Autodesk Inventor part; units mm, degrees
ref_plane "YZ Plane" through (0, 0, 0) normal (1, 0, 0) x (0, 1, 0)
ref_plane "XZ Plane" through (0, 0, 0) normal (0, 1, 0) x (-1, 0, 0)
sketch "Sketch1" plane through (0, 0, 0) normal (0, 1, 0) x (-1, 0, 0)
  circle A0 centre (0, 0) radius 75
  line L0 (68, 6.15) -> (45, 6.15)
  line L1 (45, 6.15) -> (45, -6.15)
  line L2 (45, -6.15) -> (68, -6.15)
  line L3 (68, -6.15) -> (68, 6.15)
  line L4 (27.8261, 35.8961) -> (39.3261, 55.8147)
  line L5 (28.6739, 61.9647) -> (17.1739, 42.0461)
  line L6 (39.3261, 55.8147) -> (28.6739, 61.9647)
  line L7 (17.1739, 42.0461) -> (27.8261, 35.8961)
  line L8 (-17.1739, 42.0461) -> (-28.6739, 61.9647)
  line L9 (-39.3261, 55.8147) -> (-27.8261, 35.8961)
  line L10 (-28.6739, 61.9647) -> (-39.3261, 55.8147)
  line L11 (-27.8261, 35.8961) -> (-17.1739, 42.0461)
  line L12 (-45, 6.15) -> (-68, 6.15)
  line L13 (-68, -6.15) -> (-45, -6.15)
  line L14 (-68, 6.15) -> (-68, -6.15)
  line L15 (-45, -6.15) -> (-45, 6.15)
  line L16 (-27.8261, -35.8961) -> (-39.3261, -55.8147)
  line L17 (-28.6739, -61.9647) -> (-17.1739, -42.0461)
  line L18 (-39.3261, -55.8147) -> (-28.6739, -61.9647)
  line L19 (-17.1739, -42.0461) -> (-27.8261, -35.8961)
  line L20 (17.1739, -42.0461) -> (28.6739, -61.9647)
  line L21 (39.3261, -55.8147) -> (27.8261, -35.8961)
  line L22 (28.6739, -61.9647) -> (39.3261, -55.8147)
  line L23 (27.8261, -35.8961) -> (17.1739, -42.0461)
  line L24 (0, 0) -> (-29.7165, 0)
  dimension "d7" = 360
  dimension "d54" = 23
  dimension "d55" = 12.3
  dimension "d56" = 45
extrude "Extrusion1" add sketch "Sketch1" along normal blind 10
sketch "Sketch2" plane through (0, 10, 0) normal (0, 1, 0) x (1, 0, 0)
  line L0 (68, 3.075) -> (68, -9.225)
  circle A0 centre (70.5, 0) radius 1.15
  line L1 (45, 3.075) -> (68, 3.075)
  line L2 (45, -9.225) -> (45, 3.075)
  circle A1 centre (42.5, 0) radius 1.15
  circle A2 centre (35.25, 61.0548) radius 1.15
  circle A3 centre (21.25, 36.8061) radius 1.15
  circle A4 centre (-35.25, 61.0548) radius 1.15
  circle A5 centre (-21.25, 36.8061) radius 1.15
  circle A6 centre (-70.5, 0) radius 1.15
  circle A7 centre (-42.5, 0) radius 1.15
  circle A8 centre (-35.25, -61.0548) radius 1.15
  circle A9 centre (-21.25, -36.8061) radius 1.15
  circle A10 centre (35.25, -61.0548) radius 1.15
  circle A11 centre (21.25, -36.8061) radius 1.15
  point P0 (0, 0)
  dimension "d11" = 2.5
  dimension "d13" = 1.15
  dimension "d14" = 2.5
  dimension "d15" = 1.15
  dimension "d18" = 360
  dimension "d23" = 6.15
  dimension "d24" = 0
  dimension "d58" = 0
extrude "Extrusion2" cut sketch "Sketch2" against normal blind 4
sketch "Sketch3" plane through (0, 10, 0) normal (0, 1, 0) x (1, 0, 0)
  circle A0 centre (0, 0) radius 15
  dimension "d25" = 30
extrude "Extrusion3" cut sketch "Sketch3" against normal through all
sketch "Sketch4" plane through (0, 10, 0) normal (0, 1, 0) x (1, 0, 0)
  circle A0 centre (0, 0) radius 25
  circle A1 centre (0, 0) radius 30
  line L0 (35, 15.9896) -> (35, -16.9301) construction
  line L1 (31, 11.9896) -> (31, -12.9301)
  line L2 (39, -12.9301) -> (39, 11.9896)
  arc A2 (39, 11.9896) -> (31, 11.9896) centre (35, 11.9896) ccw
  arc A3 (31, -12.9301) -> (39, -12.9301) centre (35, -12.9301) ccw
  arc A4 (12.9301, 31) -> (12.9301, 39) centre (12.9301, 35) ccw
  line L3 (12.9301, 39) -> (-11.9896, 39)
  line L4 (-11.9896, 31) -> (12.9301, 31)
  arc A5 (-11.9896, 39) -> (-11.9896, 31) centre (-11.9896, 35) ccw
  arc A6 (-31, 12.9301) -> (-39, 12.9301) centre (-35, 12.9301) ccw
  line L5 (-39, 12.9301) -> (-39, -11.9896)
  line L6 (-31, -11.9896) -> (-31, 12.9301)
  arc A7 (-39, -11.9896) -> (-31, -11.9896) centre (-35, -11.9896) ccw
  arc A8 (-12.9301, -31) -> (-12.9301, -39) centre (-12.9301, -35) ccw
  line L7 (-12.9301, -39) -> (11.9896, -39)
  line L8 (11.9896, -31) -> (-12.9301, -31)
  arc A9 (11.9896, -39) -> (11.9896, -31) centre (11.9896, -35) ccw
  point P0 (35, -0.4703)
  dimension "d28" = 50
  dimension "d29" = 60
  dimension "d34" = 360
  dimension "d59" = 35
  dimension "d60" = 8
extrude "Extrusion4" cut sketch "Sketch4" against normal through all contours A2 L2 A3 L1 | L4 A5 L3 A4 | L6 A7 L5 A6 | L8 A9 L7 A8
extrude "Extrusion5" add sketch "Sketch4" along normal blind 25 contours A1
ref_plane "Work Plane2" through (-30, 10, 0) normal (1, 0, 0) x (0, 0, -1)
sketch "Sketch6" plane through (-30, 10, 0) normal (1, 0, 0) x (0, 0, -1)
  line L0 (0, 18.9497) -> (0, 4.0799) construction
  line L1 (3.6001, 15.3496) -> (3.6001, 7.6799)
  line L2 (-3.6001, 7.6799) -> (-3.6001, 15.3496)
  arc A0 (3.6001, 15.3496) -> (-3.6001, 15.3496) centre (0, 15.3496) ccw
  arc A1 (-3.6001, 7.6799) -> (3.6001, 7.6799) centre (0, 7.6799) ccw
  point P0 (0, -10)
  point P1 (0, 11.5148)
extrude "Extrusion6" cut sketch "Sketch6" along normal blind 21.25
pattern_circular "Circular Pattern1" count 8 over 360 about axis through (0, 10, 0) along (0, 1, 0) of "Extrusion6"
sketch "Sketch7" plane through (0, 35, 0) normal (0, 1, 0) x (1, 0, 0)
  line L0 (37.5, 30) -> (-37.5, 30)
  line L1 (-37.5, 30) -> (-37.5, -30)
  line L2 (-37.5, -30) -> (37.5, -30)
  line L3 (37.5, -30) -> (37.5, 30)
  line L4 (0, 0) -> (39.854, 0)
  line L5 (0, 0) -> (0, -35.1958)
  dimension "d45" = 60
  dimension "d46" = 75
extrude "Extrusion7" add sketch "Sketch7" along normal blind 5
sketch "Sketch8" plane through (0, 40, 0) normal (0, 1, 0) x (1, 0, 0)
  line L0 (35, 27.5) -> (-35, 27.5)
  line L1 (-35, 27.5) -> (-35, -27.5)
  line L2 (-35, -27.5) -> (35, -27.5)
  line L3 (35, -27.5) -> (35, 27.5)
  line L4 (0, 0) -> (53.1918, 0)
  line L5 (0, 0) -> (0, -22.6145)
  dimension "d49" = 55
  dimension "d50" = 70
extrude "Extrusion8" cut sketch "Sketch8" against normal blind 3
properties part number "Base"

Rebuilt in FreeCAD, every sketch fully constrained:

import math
import FreeCAD as App
import Part
import Sketcher

V = App.Vector
Q = App.Units.Quantity

doc = App.newDocument("Part")
params = doc.addObject("Spreadsheet::Sheet", "Params")
for row, (alias, value) in enumerate([
    ("sketch1_width", "23 mm"),
    ("sketch1_length", "23 mm"),
    ("sketch1_diameter", "150 mm"),
    ("sketch1_height", "12.3 mm"),
    ("sketch1_length2", "12.3 mm"),
    ("pad1_length", "10 mm"),
    ("sketch2_diameter", "2.3 mm"),
    ("pocket1_length", "4 mm"),
    ("sketch3_diameter", "30 mm"),
    ("sketch4_radius", "4 mm"),
    ("sketch5_diameter", "60 mm"),
    ("sketch5_diameter2", "50 mm"),
    ("pad2_length", "25 mm"),
    ("sketch6_radius", "3.6 mm"),
    ("pocket4_length", "21.25 mm"),
    ("sketch7_width", "75 mm"),
    ("sketch7_height", "60 mm"),
    ("pad3_length", "5 mm"),
    ("sketch8_width", "70 mm"),
    ("sketch8_height", "55 mm"),
    ("pocket5_length", "3 mm"),
], start=1):
    params.set(f"A{row}", alias)
    params.set(f"B{row}", "=" + value)
    params.setAlias(f"B{row}", alias)

body = doc.addObject("PartDesign::Body", "Body")

sketch1 = body.newObject("Sketcher::SketchObject", "Sketch")
sketch1.AttachmentSupport = (doc.getObject("XZ_Plane"), [""])
sketch1.MapMode = "FlatFace"
sketch1.addGeometry([
    Part.Circle(V(0, 0, 0), V(0, 0, 1), 75),
    Part.LineSegment(V(39, -56, 0), V(28, -36, 0)),
    Part.LineSegment(V(28, -36, 0), V(17, -42, 0)),
    Part.LineSegment(V(17, -42, 0), V(29, -62, 0)),
    Part.LineSegment(V(29, -62, 0), V(39, -56, 0)),
    Part.LineSegment(V(-29, -62, 0), V(-17, -42, 0)),
    Part.LineSegment(V(-17, -42, 0), V(-28, -36, 0)),
    Part.LineSegment(V(-28, -36, 0), V(-39, -56, 0)),
    Part.LineSegment(V(-39, -56, 0), V(-29, -62, 0)),
    Part.LineSegment(V(68, 6, 0), V(45, 6, 0)),
    Part.LineSegment(V(45, 6, 0), V(45, -6, 0)),
    Part.LineSegment(V(45, -6, 0), V(68, -6, 0)),
    Part.LineSegment(V(68, -6, 0), V(68, 6, 0)),
    Part.LineSegment(V(29, 62, 0), V(17, 42, 0)),
    Part.LineSegment(V(17, 42, 0), V(28, 36, 0)),
    Part.LineSegment(V(28, 36, 0), V(39, 56, 0)),
    Part.LineSegment(V(39, 56, 0), V(29, 62, 0)),
    Part.LineSegment(V(-45, 6, 0), V(-68, 6, 0)),
    Part.LineSegment(V(-68, 6, 0), V(-68, -6, 0)),
    Part.LineSegment(V(-68, -6, 0), V(-45, -6, 0)),
    Part.LineSegment(V(-45, -6, 0), V(-45, 6, 0)),
    Part.LineSegment(V(-39, 56, 0), V(-28, 36, 0)),
    Part.LineSegment(V(-28, 36, 0), V(-17, 42, 0)),
    Part.LineSegment(V(-17, 42, 0), V(-29, 62, 0)),
    Part.LineSegment(V(-29, 62, 0), V(-39, 56, 0)),
], False)
sketch1.addConstraint([
    Sketcher.Constraint("Coincident", 1, 2, 2, 1),
    Sketcher.Constraint("Coincident", 2, 2, 3, 1),
    Sketcher.Constraint("Coincident", 3, 2, 4, 1),
    Sketcher.Constraint("Coincident", 4, 2, 1, 1),
    Sketcher.Constraint("Coincident", 5, 2, 6, 1),
    Sketcher.Constraint("Coincident", 6, 2, 7, 1),
    Sketcher.Constraint("Coincident", 7, 2, 8, 1),
    Sketcher.Constraint("Coincident", 8, 2, 5, 1),
    Sketcher.Constraint("Coincident", 9, 2, 10, 1),
    Sketcher.Constraint("Coincident", 10, 2, 11, 1),
    Sketcher.Constraint("Coincident", 11, 2, 12, 1),
    Sketcher.Constraint("Coincident", 12, 2, 9, 1),
    Sketcher.Constraint("Coincident", 13, 2, 14, 1),
    Sketcher.Constraint("Coincident", 14, 2, 15, 1),
    Sketcher.Constraint("Coincident", 15, 2, 16, 1),
    Sketcher.Constraint("Coincident", 16, 2, 13, 1),
    Sketcher.Constraint("Coincident", 17, 2, 18, 1),
    Sketcher.Constraint("Coincident", 18, 2, 19, 1),
    Sketcher.Constraint("Coincident", 19, 2, 20, 1),
    Sketcher.Constraint("Coincident", 20, 2, 17, 1),
    Sketcher.Constraint("Coincident", 21, 2, 22, 1),
    Sketcher.Constraint("Coincident", 22, 2, 23, 1),
    Sketcher.Constraint("Coincident", 23, 2, 24, 1),
    Sketcher.Constraint("Coincident", 24, 2, 21, 1),
    Sketcher.Constraint("Horizontal", 9),
    Sketcher.Constraint("Vertical", 10),
    Sketcher.Constraint("Horizontal", 11),
    Sketcher.Constraint("Vertical", 12),
    Sketcher.Constraint("Horizontal", 17),
    Sketcher.Constraint("Vertical", 18),
    Sketcher.Constraint("Horizontal", 19),
    Sketcher.Constraint("Vertical", 20),
    Sketcher.Constraint("Coincident", 0, 3, -1, 1),
    Sketcher.Constraint("Symmetric", 5, 2, 13, 2, -1, 1),
    Sketcher.Constraint("Symmetric", 6, 2, 14, 2, -1, 1),
    Sketcher.Constraint("Symmetric", 7, 2, 15, 2, -1, 1),
    Sketcher.Constraint("Symmetric", 8, 2, 16, 2, -1, 1),
    Sketcher.Constraint("Symmetric", 11, 2, 17, 2, -1, 1),
    Sketcher.Constraint("Symmetric", 9, 2, 19, 2, -1, 1),
    Sketcher.Constraint("Symmetric", 1, 2, 21, 2, -1, 1),
    Sketcher.Constraint("Symmetric", 2, 2, 22, 2, -1, 1),
    Sketcher.Constraint("Symmetric", 3, 2, 23, 2, -1, 1),
    Sketcher.Constraint("Symmetric", 4, 2, 24, 2, -1, 1),
    Sketcher.Constraint("Symmetric", 2, 2, 5, 2, -2),
    Sketcher.Constraint("Symmetric", 1, 2, 6, 2, -2),
    Sketcher.Constraint("Symmetric", 4, 2, 7, 2, -2),
    Sketcher.Constraint("Symmetric", 3, 2, 8, 2, -2),
    Sketcher.Constraint("Perpendicular", 1, 2),
    Sketcher.Constraint("Perpendicular", 2, 3),
    Sketcher.Constraint("Perpendicular", 3, 4),
    Sketcher.Constraint("Horizontal", 12, 2, 17, 2),
    Sketcher.Constraint("DistanceX", 9, 2, 9, 1, Q("23 mm")),
    Sketcher.Constraint("Distance", 1, Q("23 mm")),
    Sketcher.Constraint("Diameter", 0, Q("150 mm")),
    Sketcher.Constraint("DistanceY", 10, 2, 10, 1, Q("12.3 mm")),
    Sketcher.Constraint("DistanceX", -1, 1, 9, 2, Q("45 mm")),
    Sketcher.Constraint("DistanceX", 5, 2, 1, 2, Q("45 mm")),
    Sketcher.Constraint("Distance", 2, Q("12.3 mm")),
    Sketcher.Constraint("Angle", 1, Q("120 deg")),
    Sketcher.Constraint("DistanceY", 1, 2, -1, 1, Q("35.896 mm")),
])
sketch1.setExpression("Constraints[51]", "Params.sketch1_width")
sketch1.setExpression("Constraints[52]", "Params.sketch1_length")
sketch1.setExpression("Constraints[53]", "Params.sketch1_diameter")
sketch1.setExpression("Constraints[54]", "Params.sketch1_height")
sketch1.setExpression("Constraints[57]", "Params.sketch1_length2")
pad1 = body.newObject("PartDesign::Pad", "Pad")
pad1.Profile = sketch1
pad1.setExpression("Length", "Params.pad1_length")
pad1.Reversed = True

sketch2 = body.newObject("Sketcher::SketchObject", "Sketch001")
sketch2.AttachmentSupport = (doc.getObject("XZ_Plane"), [""])
sketch2.MapMode = "FlatFace"
sketch2.AttachmentOffset = App.Placement(V(0, 0, -10), App.Rotation())
sketch2.addGeometry([
    Part.Circle(V(70.5, 0, 0), V(0, 0, 1), 1.1),
    Part.Circle(V(42.5, 0, 0), V(0, 0, 1), 1.1),
    Part.Circle(V(35.2, -61.1, 0), V(0, 0, 1), 1.1),
    Part.Circle(V(21.2, -36.8, 0), V(0, 0, 1), 1.1),
    Part.Circle(V(-35.2, -61.1, 0), V(0, 0, 1), 1.1),
    Part.Circle(V(-21.2, -36.8, 0), V(0, 0, 1), 1.1),
    Part.Circle(V(-70.5, 0, 0), V(0, 0, 1), 1.1),
    Part.Circle(V(-42.5, 0, 0), V(0, 0, 1), 1.1),
    Part.Circle(V(-35.2, 61.1, 0), V(0, 0, 1), 1.1),
    Part.Circle(V(-21.2, 36.8, 0), V(0, 0, 1), 1.1),
    Part.Circle(V(35.2, 61.1, 0), V(0, 0, 1), 1.1),
    Part.Circle(V(21.2, 36.8, 0), V(0, 0, 1), 1.1),
], False)
sketch2.addConstraint([
    Sketcher.Constraint("Equal", 0, 1),
    Sketcher.Constraint("Equal", 1, 2),
    Sketcher.Constraint("Equal", 2, 3),
    Sketcher.Constraint("Equal", 3, 4),
    Sketcher.Constraint("Equal", 4, 5),
    Sketcher.Constraint("Equal", 5, 6),
    Sketcher.Constraint("Equal", 6, 7),
    Sketcher.Constraint("Equal", 7, 8),
    Sketcher.Constraint("Equal", 8, 9),
    Sketcher.Constraint("Equal", 9, 10),
    Sketcher.Constraint("Equal", 10, 11),
    Sketcher.Constraint("Symmetric", 0, 3, 6, 3, -1, 1),
    Sketcher.Constraint("Symmetric", 1, 3, 7, 3, -1, 1),
    Sketcher.Constraint("Symmetric", 2, 3, 8, 3, -1, 1),
    Sketcher.Constraint("Symmetric", 3, 3, 9, 3, -1, 1),
    Sketcher.Constraint("Symmetric", 4, 3, 10, 3, -1, 1),
    Sketcher.Constraint("Symmetric", 5, 3, 11, 3, -1, 1),
    Sketcher.Constraint("Symmetric", 2, 3, 4, 3, -2),
    Sketcher.Constraint("Symmetric", 3, 3, 5, 3, -2),
    Sketcher.Constraint("PointOnObject", 0, 3, -1),
    Sketcher.Constraint("PointOnObject", 1, 3, -1),
    Sketcher.Constraint("Diameter", 0, Q("2.3 mm")),
    Sketcher.Constraint("DistanceX", 1, 3, 0, 3, Q("28 mm")),
    Sketcher.Constraint("DistanceX", 3, 3, 2, 3, Q("14 mm")),
    Sketcher.Constraint("DistanceX", 6, 3, 1, 3, Q("113 mm")),
    Sketcher.Constraint("DistanceX", 4, 3, 3, 3, Q("56.5 mm")),
    Sketcher.Constraint("DistanceY", 3, 3, -1, 1, Q("36.806 mm")),
    Sketcher.Constraint("DistanceY", 5, 3, 8, 3, Q("97.861 mm")),
])
sketch2.setExpression("Constraints[21]", "Params.sketch2_diameter")
pocket1 = body.newObject("PartDesign::Pocket", "Pocket")
pocket1.Profile = sketch2
pocket1.setExpression("Length", "Params.pocket1_length")
pocket1.Reversed = True

sketch3 = body.newObject("Sketcher::SketchObject", "Sketch002")
sketch3.AttachmentSupport = (doc.getObject("XZ_Plane"), [""])
sketch3.MapMode = "FlatFace"
sketch3.AttachmentOffset = App.Placement(V(0, 0, -10), App.Rotation())
sketch3.addGeometry(Part.Circle(V(0, 0, 0), V(0, 0, 1), 15), False)
sketch3.addConstraint([
    Sketcher.Constraint("Coincident", 0, 3, -1, 1),
    Sketcher.Constraint("Diameter", 0, Q("30 mm")),
])
sketch3.setExpression("Constraints[1]", "Params.sketch3_diameter")
pocket2 = body.newObject("PartDesign::Pocket", "Pocket001")
pocket2.Profile = sketch3
pocket2.Type = "ThroughAll"
pocket2.Reversed = True

sketch4 = body.newObject("Sketcher::SketchObject", "Sketch003")
sketch4.AttachmentSupport = (doc.getObject("XZ_Plane"), [""])
sketch4.MapMode = "FlatFace"
sketch4.AttachmentOffset = App.Placement(V(0, 0, -10), App.Rotation())
sketch4.addGeometry([
    Part.ArcOfCircle(Part.Circle(V(35, -12, 0), V(0, 0, 1), 4), math.radians(180), math.radians(360)),
    Part.LineSegment(V(31, -12, 0), V(31, 12.9, 0)),
    Part.ArcOfCircle(Part.Circle(V(35, 12.9, 0), V(0, 0, 1), 4), math.radians(0), math.radians(180)),
    Part.LineSegment(V(39, 12.9, 0), V(39, -12, 0)),
    Part.LineSegment(V(-12, -31, 0), V(12.9, -31, 0)),
    Part.ArcOfCircle(Part.Circle(V(12.9, -35, 0), V(0, 0, 1), 4), math.radians(-90), math.radians(90)),
    Part.LineSegment(V(12.9, -39, 0), V(-12, -39, 0)),
    Part.ArcOfCircle(Part.Circle(V(-12, -35, 0), V(0, 0, 1), 4), math.radians(90), math.radians(270)),
    Part.LineSegment(V(-31, 12, 0), V(-31, -12.9, 0)),
    Part.ArcOfCircle(Part.Circle(V(-35, -12.9, 0), V(0, 0, 1), 4), math.radians(180), math.radians(360)),
    Part.LineSegment(V(-39, -12.9, 0), V(-39, 12, 0)),
    Part.ArcOfCircle(Part.Circle(V(-35, 12, 0), V(0, 0, 1), 4), math.radians(0), math.radians(180)),
    Part.LineSegment(V(12, 31, 0), V(-12.9, 31, 0)),
    Part.ArcOfCircle(Part.Circle(V(-12.9, 35, 0), V(0, 0, 1), 4), math.radians(90), math.radians(270)),
    Part.LineSegment(V(-12.9, 39, 0), V(12, 39, 0)),
    Part.ArcOfCircle(Part.Circle(V(12, 35, 0), V(0, 0, 1), 4), math.radians(-90), math.radians(90)),
], False)
sketch4.addConstraint([
    Sketcher.Constraint("Tangent", 0, 1, 1, 1),
    Sketcher.Constraint("Tangent", 1, 2, 2, 2),
    Sketcher.Constraint("Tangent", 2, 1, 3, 1),
    Sketcher.Constraint("Tangent", 3, 2, 0, 2),
    Sketcher.Constraint("Tangent", 4, 2, 5, 2),
    Sketcher.Constraint("Tangent", 5, 1, 6, 1),
    Sketcher.Constraint("Tangent", 6, 2, 7, 2),
    Sketcher.Constraint("Tangent", 7, 1, 4, 1),
    Sketcher.Constraint("Tangent", 8, 2, 9, 2),
    Sketcher.Constraint("Tangent", 9, 1, 10, 1),
    Sketcher.Constraint("Tangent", 10, 2, 11, 2),
    Sketcher.Constraint("Tangent", 11, 1, 8, 1),
    Sketcher.Constraint("Tangent", 12, 2, 13, 2),
    Sketcher.Constraint("Tangent", 13, 1, 14, 1),
    Sketcher.Constraint("Tangent", 14, 2, 15, 2),
    Sketcher.Constraint("Tangent", 15, 1, 12, 1),
    Sketcher.Constraint("Vertical", 1),
    Sketcher.Constraint("Vertical", 3),
    Sketcher.Constraint("Horizontal", 4),
    Sketcher.Constraint("Horizontal", 6),
    Sketcher.Constraint("Vertical", 8),
    Sketcher.Constraint("Vertical", 10),
    Sketcher.Constraint("Horizontal", 12),
    Sketcher.Constraint("Horizontal", 14),
    Sketcher.Constraint("Equal", 2, 5),
    Sketcher.Constraint("Equal", 7, 9),
    Sketcher.Constraint("Equal", 11, 13),
    Sketcher.Constraint("Symmetric", 2, 3, 9, 3, -1, 1),
    Sketcher.Constraint("Symmetric", 5, 3, 13, 3, -1, 1),
    Sketcher.Constraint("Equal", 6, 12),
    Sketcher.Constraint("Equal", 14, 1),
    Sketcher.Constraint("Equal", 3, 8),
    Sketcher.Constraint("Radius", 0, Q("4 mm")),
    Sketcher.Constraint("DistanceX", -1, 1, 0, 3, Q("35 mm")),
    Sketcher.Constraint("DistanceY", 5, 3, -1, 1, Q("35 mm")),
    Sketcher.Constraint("DistanceY", -1, 1, 2, 3, Q("12.93 mm")),
    Sketcher.Constraint("DistanceX", -1, 1, 5, 3, Q("12.93 mm")),
    Sketcher.Constraint("DistanceX", 4, 1, 4, 2, Q("24.9197 mm")),
])
sketch4.setExpression("Constraints[32]", "Params.sketch4_radius")
pocket3 = body.newObject("PartDesign::Pocket", "Pocket002")
pocket3.Profile = sketch4
pocket3.Type = "ThroughAll"
pocket3.Reversed = True

sketch5 = body.newObject("Sketcher::SketchObject", "Sketch004")
sketch5.AttachmentSupport = (doc.getObject("XZ_Plane"), [""])
sketch5.MapMode = "FlatFace"
sketch5.AttachmentOffset = App.Placement(V(0, 0, -10), App.Rotation())
sketch5.addGeometry([
    Part.Circle(V(0, 0, 0), V(0, 0, 1), 30),
    Part.Circle(V(0, 0, 0), V(0, 0, 1), 25),
], False)
sketch5.addConstraint([
    Sketcher.Constraint("Coincident", 0, 3, -1, 1),
    Sketcher.Constraint("Coincident", 1, 3, -1, 1),
    Sketcher.Constraint("Diameter", 0, Q("60 mm")),
    Sketcher.Constraint("Diameter", 1, Q("50 mm")),
])
sketch5.setExpression("Constraints[2]", "Params.sketch5_diameter")
sketch5.setExpression("Constraints[3]", "Params.sketch5_diameter2")
pad2 = body.newObject("PartDesign::Pad", "Pad001")
pad2.Profile = sketch5
pad2.setExpression("Length", "Params.pad2_length")
pad2.Reversed = True

sketch6 = body.newObject("Sketcher::SketchObject", "Sketch005")
sketch6.AttachmentSupport = (doc.getObject("YZ_Plane"), [""])
sketch6.MapMode = "FlatFace"
sketch6.AttachmentOffset = App.Placement(V(0, 0, -30), App.Rotation())
sketch6.addGeometry([
    Part.LineSegment(V(17.7, -3.6, 0), V(25.3, -3.6, 0)),
    Part.ArcOfCircle(Part.Circle(V(25.3, 0, 0), V(0, 0, 1), 3.6), math.radians(-90), math.radians(90)),
    Part.LineSegment(V(25.3, 3.6, 0), V(17.7, 3.6, 0)),
    Part.ArcOfCircle(Part.Circle(V(17.7, 0, 0), V(0, 0, 1), 3.6), math.radians(90), math.radians(270)),
], False)
sketch6.addConstraint([
    Sketcher.Constraint("Tangent", 0, 2, 1, 1),
    Sketcher.Constraint("Tangent", 1, 2, 2, 1),
    Sketcher.Constraint("Tangent", 2, 2, 3, 1),
    Sketcher.Constraint("Tangent", 3, 2, 0, 1),
    Sketcher.Constraint("Horizontal", 0),
    Sketcher.Constraint("Horizontal", 2),
    Sketcher.Constraint("PointOnObject", 1, 3, -1),
    Sketcher.Constraint("Radius", 1, Q("3.6 mm")),
    Sketcher.Constraint("DistanceX", -1, 1, 3, 3, Q("17.68 mm")),
    Sketcher.Constraint("DistanceX", 0, 1, 0, 2, Q("7.6697 mm")),
])
sketch6.setExpression("Constraints[7]", "Params.sketch6_radius")
pocket4 = body.newObject("PartDesign::Pocket", "Pocket003")
pocket4.Profile = sketch6
pocket4.setExpression("Length", "Params.pocket4_length")
pocket4.Reversed = True
doc.recompute()

polarpattern = body.newObject("PartDesign::PolarPattern", "PolarPattern")
polarpattern.Originals = [pocket4]
polarpattern.Axis = (doc.getObject("Y_Axis"), [""])
polarpattern.Angle = 360
polarpattern.Occurrences = 8
body.Tip = polarpattern

sketch7 = body.newObject("Sketcher::SketchObject", "Sketch006")
sketch7.AttachmentSupport = (doc.getObject("XZ_Plane"), [""])
sketch7.MapMode = "FlatFace"
sketch7.AttachmentOffset = App.Placement(V(0, 0, -35), App.Rotation())
sketch7.addGeometry([
    Part.LineSegment(V(38, -30, 0), V(-38, -30, 0)),
    Part.LineSegment(V(-38, -30, 0), V(-38, 30, 0)),
    Part.LineSegment(V(-38, 30, 0), V(38, 30, 0)),
    Part.LineSegment(V(38, 30, 0), V(38, -30, 0)),
], False)
sketch7.addConstraint([
    Sketcher.Constraint("Coincident", 0, 2, 1, 1),
    Sketcher.Constraint("Coincident", 1, 2, 2, 1),
    Sketcher.Constraint("Coincident", 2, 2, 3, 1),
    Sketcher.Constraint("Coincident", 3, 2, 0, 1),
    Sketcher.Constraint("Horizontal", 0),
    Sketcher.Constraint("Vertical", 1),
    Sketcher.Constraint("Horizontal", 2),
    Sketcher.Constraint("Vertical", 3),
    Sketcher.Constraint("Symmetric", 0, 2, 2, 2, -1, 1),
    Sketcher.Constraint("DistanceX", 0, 2, 0, 1, Q("75 mm")),
    Sketcher.Constraint("DistanceY", 1, 1, 1, 2, Q("60 mm")),
])
sketch7.setExpression("Constraints[9]", "Params.sketch7_width")
sketch7.setExpression("Constraints[10]", "Params.sketch7_height")
pad3 = body.newObject("PartDesign::Pad", "Pad002")
pad3.Profile = sketch7
pad3.setExpression("Length", "Params.pad3_length")
pad3.Reversed = True

sketch8 = body.newObject("Sketcher::SketchObject", "Sketch007")
sketch8.AttachmentSupport = (doc.getObject("XZ_Plane"), [""])
sketch8.MapMode = "FlatFace"
sketch8.AttachmentOffset = App.Placement(V(0, 0, -40), App.Rotation())
sketch8.addGeometry([
    Part.LineSegment(V(35, 28, 0), V(35, -28, 0)),
    Part.LineSegment(V(35, -28, 0), V(-35, -28, 0)),
    Part.LineSegment(V(-35, -28, 0), V(-35, 28, 0)),
    Part.LineSegment(V(-35, 28, 0), V(35, 28, 0)),
], False)
sketch8.addConstraint([
    Sketcher.Constraint("Coincident", 0, 2, 1, 1),
    Sketcher.Constraint("Coincident", 1, 2, 2, 1),
    Sketcher.Constraint("Coincident", 2, 2, 3, 1),
    Sketcher.Constraint("Coincident", 3, 2, 0, 1),
    Sketcher.Constraint("Vertical", 0),
    Sketcher.Constraint("Horizontal", 1),
    Sketcher.Constraint("Vertical", 2),
    Sketcher.Constraint("Horizontal", 3),
    Sketcher.Constraint("Symmetric", 0, 2, 2, 2, -1, 1),
    Sketcher.Constraint("DistanceX", 1, 2, 1, 1, Q("70 mm")),
    Sketcher.Constraint("DistanceY", 0, 2, 0, 1, Q("55 mm")),
])
sketch8.setExpression("Constraints[9]", "Params.sketch8_width")
sketch8.setExpression("Constraints[10]", "Params.sketch8_height")
pocket5 = body.newObject("PartDesign::Pocket", "Pocket004")
pocket5.Profile = sketch8
pocket5.setExpression("Length", "Params.pocket5_length")
pocket5.Reversed = True

doc.recompute()
